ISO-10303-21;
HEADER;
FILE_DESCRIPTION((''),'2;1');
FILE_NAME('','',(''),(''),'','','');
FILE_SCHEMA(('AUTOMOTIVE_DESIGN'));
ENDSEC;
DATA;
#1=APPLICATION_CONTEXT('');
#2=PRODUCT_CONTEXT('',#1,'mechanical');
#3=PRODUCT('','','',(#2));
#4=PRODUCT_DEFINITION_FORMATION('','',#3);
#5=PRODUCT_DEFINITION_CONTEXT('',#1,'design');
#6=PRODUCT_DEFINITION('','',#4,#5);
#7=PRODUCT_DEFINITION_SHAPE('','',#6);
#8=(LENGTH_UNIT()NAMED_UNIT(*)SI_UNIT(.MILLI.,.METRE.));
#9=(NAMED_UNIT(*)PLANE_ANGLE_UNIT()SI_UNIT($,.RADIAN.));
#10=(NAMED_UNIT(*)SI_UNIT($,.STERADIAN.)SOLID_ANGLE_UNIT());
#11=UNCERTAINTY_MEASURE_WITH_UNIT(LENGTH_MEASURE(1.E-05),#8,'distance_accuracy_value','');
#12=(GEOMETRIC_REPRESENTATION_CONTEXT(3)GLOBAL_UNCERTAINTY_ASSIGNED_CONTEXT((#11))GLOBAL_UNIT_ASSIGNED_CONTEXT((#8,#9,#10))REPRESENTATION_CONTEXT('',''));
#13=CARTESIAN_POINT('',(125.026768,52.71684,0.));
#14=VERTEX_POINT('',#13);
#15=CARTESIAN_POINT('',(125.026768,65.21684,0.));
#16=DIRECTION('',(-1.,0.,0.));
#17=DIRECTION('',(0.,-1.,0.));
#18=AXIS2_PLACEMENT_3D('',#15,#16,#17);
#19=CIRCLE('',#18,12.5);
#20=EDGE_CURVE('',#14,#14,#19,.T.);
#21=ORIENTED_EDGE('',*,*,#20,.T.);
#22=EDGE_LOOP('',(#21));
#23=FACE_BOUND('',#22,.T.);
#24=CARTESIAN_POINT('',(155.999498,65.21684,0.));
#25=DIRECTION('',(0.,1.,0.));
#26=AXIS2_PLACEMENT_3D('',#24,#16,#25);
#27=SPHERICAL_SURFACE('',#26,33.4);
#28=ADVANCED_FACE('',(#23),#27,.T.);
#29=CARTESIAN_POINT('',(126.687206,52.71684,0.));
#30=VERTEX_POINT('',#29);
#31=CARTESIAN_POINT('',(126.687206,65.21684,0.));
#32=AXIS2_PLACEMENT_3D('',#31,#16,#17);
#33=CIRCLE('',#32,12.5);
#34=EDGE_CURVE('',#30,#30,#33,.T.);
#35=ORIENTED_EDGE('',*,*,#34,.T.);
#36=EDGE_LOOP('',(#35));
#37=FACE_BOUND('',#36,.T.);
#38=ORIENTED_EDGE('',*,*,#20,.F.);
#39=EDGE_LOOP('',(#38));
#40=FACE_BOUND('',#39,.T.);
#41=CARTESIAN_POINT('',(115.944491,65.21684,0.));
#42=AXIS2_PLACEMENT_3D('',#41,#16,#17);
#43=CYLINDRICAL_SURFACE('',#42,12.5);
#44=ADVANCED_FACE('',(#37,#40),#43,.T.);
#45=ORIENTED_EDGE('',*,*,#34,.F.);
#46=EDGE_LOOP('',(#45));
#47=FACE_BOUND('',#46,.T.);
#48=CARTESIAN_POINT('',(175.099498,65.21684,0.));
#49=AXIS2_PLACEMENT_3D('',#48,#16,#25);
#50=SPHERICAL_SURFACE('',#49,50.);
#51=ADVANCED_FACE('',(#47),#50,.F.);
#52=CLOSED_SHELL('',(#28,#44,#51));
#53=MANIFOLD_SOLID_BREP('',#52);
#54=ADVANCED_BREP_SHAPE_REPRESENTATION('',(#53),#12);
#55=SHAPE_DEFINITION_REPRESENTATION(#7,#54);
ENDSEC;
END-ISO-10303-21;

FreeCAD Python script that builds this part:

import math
import FreeCAD as App
import Part
import Sketcher

V = App.Vector

doc = App.newDocument("Part")
body = doc.addObject("PartDesign::Body", "Body")

# Sketch on XY plane
sketch1 = body.newObject("Sketcher::SketchObject", "Sketch")
sketch1.AttachmentSupport = (doc.getObject("XY_Plane"), [""])
sketch1.MapMode = "FlatFace"
sketch1.addGeometry([
    Part.LineSegment(V(126.687206, 77.71684, 0), V(125.026768, 77.71684, 0)),
    Part.ArcOfCircle(Part.Circle(V(155.999498, 65.21684, 0), V(0, 0, 1), 33.4), math.radians(158.021942), math.radians(180)),
    Part.LineSegment(V(122.599498, 65.21684, 0), V(125.099498, 65.21684, 0)),
    Part.ArcOfCircle(Part.Circle(V(175.099498, 65.21684, 0), V(0, 0, 1), 50), math.radians(165.522488), math.radians(180)),
], False)
sketch1.addGeometry(Part.LineSegment(V(122.599498, 65.21684, 0), V(175.099498, 65.21684, 0)), True)  # axis
sketch1.addConstraint([
    Sketcher.Constraint("Coincident", 0, 2, 1, 1),
    Sketcher.Constraint("Coincident", 1, 2, 2, 1),
    Sketcher.Constraint("Coincident", 2, 2, 3, 2),
    Sketcher.Constraint("Coincident", 3, 1, 0, 1),
    Sketcher.Constraint("Horizontal", 0),
    Sketcher.Constraint("Horizontal", 2),
    Sketcher.Constraint("Horizontal", 4),
    Sketcher.Constraint("Coincident", 4, 1, 1, 2),
    Sketcher.Constraint("Coincident", 4, 2, 3, 3),
    Sketcher.Constraint("Horizontal", 1, 3, 3, 3),
    Sketcher.Constraint("Radius", 3, 50.0),
    Sketcher.Constraint("Radius", 1, 33.4),
    Sketcher.Constraint("DistanceX", 2, 1, 2, 2, 2.5),
    Sketcher.Constraint("DistanceY", 1, 3, 0, 2, 12.5),
    Sketcher.Constraint("DistanceY", -1, 1, 1, 3, 65.21684),
    Sketcher.Constraint("DistanceX", -1, 1, 1, 3, 155.999498),
])
revolution = body.newObject("PartDesign::Revolution", "Revolution")
revolution.Profile = sketch1
revolution.ReferenceAxis = (sketch1, ["Axis0"])
revolution.Angle = 360

doc.recompute()
